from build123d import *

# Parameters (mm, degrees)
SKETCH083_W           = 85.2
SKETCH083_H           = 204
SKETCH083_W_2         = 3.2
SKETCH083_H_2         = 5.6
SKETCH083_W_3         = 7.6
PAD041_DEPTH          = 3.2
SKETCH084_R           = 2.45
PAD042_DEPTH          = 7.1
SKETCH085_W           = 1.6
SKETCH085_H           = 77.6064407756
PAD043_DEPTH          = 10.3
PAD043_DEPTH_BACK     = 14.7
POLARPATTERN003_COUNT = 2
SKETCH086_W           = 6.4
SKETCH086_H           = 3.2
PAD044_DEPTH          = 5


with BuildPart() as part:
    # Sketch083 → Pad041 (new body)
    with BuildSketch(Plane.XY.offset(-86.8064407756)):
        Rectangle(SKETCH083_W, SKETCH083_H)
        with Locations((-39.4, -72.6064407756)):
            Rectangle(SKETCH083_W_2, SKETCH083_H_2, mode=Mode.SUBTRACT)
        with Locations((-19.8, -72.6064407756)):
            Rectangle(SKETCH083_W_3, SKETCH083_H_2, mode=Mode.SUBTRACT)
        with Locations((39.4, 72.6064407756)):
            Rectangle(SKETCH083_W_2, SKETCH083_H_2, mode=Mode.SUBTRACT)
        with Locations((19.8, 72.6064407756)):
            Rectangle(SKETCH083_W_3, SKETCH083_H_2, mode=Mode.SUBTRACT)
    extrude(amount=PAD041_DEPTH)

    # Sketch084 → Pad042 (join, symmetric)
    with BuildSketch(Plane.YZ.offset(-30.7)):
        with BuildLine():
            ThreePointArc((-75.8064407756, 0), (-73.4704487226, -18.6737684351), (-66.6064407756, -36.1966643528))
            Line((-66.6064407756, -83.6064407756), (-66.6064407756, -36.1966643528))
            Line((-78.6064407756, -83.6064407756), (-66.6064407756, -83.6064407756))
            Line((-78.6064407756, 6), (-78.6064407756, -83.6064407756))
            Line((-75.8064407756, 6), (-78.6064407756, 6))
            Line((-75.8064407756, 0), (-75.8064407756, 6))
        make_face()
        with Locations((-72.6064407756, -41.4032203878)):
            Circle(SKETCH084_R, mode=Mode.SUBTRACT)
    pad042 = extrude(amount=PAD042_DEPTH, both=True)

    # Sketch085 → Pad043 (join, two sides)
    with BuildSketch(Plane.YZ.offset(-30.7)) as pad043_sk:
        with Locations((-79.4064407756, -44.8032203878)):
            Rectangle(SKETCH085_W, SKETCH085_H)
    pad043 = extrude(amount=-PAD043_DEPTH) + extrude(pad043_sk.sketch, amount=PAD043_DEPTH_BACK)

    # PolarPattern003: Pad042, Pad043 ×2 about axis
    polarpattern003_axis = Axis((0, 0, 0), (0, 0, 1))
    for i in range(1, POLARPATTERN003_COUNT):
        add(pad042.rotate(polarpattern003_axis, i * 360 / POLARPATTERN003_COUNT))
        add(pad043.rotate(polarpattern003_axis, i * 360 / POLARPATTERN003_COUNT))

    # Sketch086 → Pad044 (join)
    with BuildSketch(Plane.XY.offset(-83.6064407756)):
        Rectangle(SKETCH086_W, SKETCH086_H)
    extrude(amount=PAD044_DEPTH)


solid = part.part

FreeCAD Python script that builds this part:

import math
import FreeCAD as App
import Part
import Sketcher
Q = App.Units.Quantity

doc = App.newDocument("Part")
body = doc.addObject("PartDesign::Body", "Body")

# Sketch on XY plane
sketch1 = body.newObject("Sketcher::SketchObject", "Sketch")
sketch1.AttachmentSupport = (doc.getObject("XY_Plane"), [""])
sketch1.MapMode = "FlatFace"
sketch1.AttachmentOffset = App.Placement(App.Vector(0, 0, -86.806441), App.Rotation())
sketch1.addGeometry(Part.LineSegment(App.Vector(-42.6, 102, 0), App.Vector(-42.6, -102, 0)), False)
sketch1.addGeometry(Part.LineSegment(App.Vector(-42.6, -102, 0), App.Vector(42.6, -102, 0)), False)
sketch1.addGeometry(Part.LineSegment(App.Vector(42.6, -102, 0), App.Vector(42.6, 102, 0)), False)
sketch1.addGeometry(Part.LineSegment(App.Vector(42.6, 102, 0), App.Vector(-42.6, 102, 0)), False)
sketch1.addGeometry(Part.LineSegment(App.Vector(-37.8, -75.4, 0), App.Vector(-41, -75.4, 0)), False)
sketch1.addGeometry(Part.LineSegment(App.Vector(-41, -75.4, 0), App.Vector(-41, -69.8, 0)), False)
sketch1.addGeometry(Part.LineSegment(App.Vector(-41, -69.8, 0), App.Vector(-37.8, -69.8, 0)), False)
sketch1.addGeometry(Part.LineSegment(App.Vector(-37.8, -69.8, 0), App.Vector(-37.8, -75.4, 0)), False)
sketch1.addGeometry(Part.LineSegment(App.Vector(-16, -75.4, 0), App.Vector(-23.6, -75.4, 0)), False)
sketch1.addGeometry(Part.LineSegment(App.Vector(-23.6, -75.4, 0), App.Vector(-23.6, -69.8, 0)), False)
sketch1.addGeometry(Part.LineSegment(App.Vector(-23.6, -69.8, 0), App.Vector(-16, -69.8, 0)), False)
sketch1.addGeometry(Part.LineSegment(App.Vector(-16, -69.8, 0), App.Vector(-16, -75.4, 0)), False)
sketch1.addGeometry(Part.LineSegment(App.Vector(23.6, 69.8, 0), App.Vector(16, 69.8, 0)), False)
sketch1.addGeometry(Part.LineSegment(App.Vector(16, 69.8, 0), App.Vector(16, 75.4, 0)), False)
sketch1.addGeometry(Part.LineSegment(App.Vector(16, 75.4, 0), App.Vector(23.6, 75.4, 0)), False)
sketch1.addGeometry(Part.LineSegment(App.Vector(23.6, 75.4, 0), App.Vector(23.6, 69.8, 0)), False)
sketch1.addGeometry(Part.LineSegment(App.Vector(41, 69.8, 0), App.Vector(37.8, 69.8, 0)), False)
sketch1.addGeometry(Part.LineSegment(App.Vector(37.8, 69.8, 0), App.Vector(37.8, 75.4, 0)), False)
sketch1.addGeometry(Part.LineSegment(App.Vector(37.8, 75.4, 0), App.Vector(41, 75.4, 0)), False)
sketch1.addGeometry(Part.LineSegment(App.Vector(41, 75.4, 0), App.Vector(41, 69.8, 0)), False)
sketch1.addConstraint(Sketcher.Constraint("Coincident", 0, 2, 1, 1))
sketch1.addConstraint(Sketcher.Constraint("Coincident", 1, 2, 2, 1))
sketch1.addConstraint(Sketcher.Constraint("Coincident", 2, 2, 3, 1))
sketch1.addConstraint(Sketcher.Constraint("Coincident", 3, 2, 0, 1))
sketch1.addConstraint(Sketcher.Constraint("Coincident", 4, 2, 5, 1))
sketch1.addConstraint(Sketcher.Constraint("Coincident", 5, 2, 6, 1))
sketch1.addConstraint(Sketcher.Constraint("Coincident", 6, 2, 7, 1))
sketch1.addConstraint(Sketcher.Constraint("Coincident", 7, 2, 4, 1))
sketch1.addConstraint(Sketcher.Constraint("Coincident", 8, 2, 9, 1))
sketch1.addConstraint(Sketcher.Constraint("Coincident", 9, 2, 10, 1))
sketch1.addConstraint(Sketcher.Constraint("Coincident", 10, 2, 11, 1))
sketch1.addConstraint(Sketcher.Constraint("Coincident", 11, 2, 8, 1))
sketch1.addConstraint(Sketcher.Constraint("Coincident", 12, 2, 13, 1))
sketch1.addConstraint(Sketcher.Constraint("Coincident", 13, 2, 14, 1))
sketch1.addConstraint(Sketcher.Constraint("Coincident", 14, 2, 15, 1))
sketch1.addConstraint(Sketcher.Constraint("Coincident", 15, 2, 12, 1))
sketch1.addConstraint(Sketcher.Constraint("Coincident", 16, 2, 17, 1))
sketch1.addConstraint(Sketcher.Constraint("Coincident", 17, 2, 18, 1))
sketch1.addConstraint(Sketcher.Constraint("Coincident", 18, 2, 19, 1))
sketch1.addConstraint(Sketcher.Constraint("Coincident", 19, 2, 16, 1))
sketch1.addConstraint(Sketcher.Constraint("Vertical", 0))
sketch1.addConstraint(Sketcher.Constraint("Horizontal", 1))
sketch1.addConstraint(Sketcher.Constraint("Vertical", 2))
sketch1.addConstraint(Sketcher.Constraint("Horizontal", 3))
sketch1.addConstraint(Sketcher.Constraint("Horizontal", 4))
sketch1.addConstraint(Sketcher.Constraint("Vertical", 5))
sketch1.addConstraint(Sketcher.Constraint("Horizontal", 6))
sketch1.addConstraint(Sketcher.Constraint("Vertical", 7))
sketch1.addConstraint(Sketcher.Constraint("Horizontal", 8))
sketch1.addConstraint(Sketcher.Constraint("Vertical", 9))
sketch1.addConstraint(Sketcher.Constraint("Horizontal", 10))
sketch1.addConstraint(Sketcher.Constraint("Vertical", 11))
sketch1.addConstraint(Sketcher.Constraint("Horizontal", 12))
sketch1.addConstraint(Sketcher.Constraint("Vertical", 13))
sketch1.addConstraint(Sketcher.Constraint("Horizontal", 14))
sketch1.addConstraint(Sketcher.Constraint("Vertical", 15))
sketch1.addConstraint(Sketcher.Constraint("Horizontal", 16))
sketch1.addConstraint(Sketcher.Constraint("Vertical", 17))
sketch1.addConstraint(Sketcher.Constraint("Horizontal", 18))
sketch1.addConstraint(Sketcher.Constraint("Vertical", 19))
sketch1.addConstraint(Sketcher.Constraint("Symmetric", 0, 2, 2, 2, -1, 1))
sketch1.addConstraint(Sketcher.Constraint("Symmetric", 10, 2, 12, 2, -1, 1))
sketch1.addConstraint(Sketcher.Constraint("Symmetric", 8, 2, 14, 2, -1, 1))
sketch1.addConstraint(Sketcher.Constraint("Symmetric", 6, 2, 16, 2, -1, 1))
sketch1.addConstraint(Sketcher.Constraint("Symmetric", 4, 2, 18, 2, -1, 1))
sketch1.addConstraint(Sketcher.Constraint("Horizontal", 7, 2, 8, 2))
sketch1.addConstraint(Sketcher.Constraint("Horizontal", 6, 2, 9, 2))
sketch1.addConstraint(Sketcher.Constraint("DistanceY", 0, 2, 0, 1, Q("204 mm")))
sketch1.addConstraint(Sketcher.Constraint("DistanceX", 1, 1, 1, 2, Q("85.2 mm")))
sketch1.addConstraint(Sketcher.Constraint("DistanceX", 4, 2, 4, 1, Q("3.2 mm")))
sketch1.addConstraint(Sketcher.Constraint("DistanceX", 8, 2, 8, 1, Q("7.6 mm")))
sketch1.addConstraint(Sketcher.Constraint("DistanceY", 5, 1, 5, 2, Q("5.6 mm")))
sketch1.addConstraint(Sketcher.Constraint("DistanceX", 4, 2, -1, 1, Q("41 mm")))
sketch1.addConstraint(Sketcher.Constraint("DistanceX", 10, 2, -1, 1, Q("16 mm")))
sketch1.addConstraint(Sketcher.Constraint("DistanceY", 4, 2, -1, 1, Q("75.406441 mm")))
pad1 = body.newObject("PartDesign::Pad", "Pad")
pad1.Profile = sketch1
pad1.Length = 3.2

# Sketch on YZ plane
sketch2 = body.newObject("Sketcher::SketchObject", "Sketch001")
sketch2.AttachmentSupport = (doc.getObject("YZ_Plane"), [""])
sketch2.MapMode = "FlatFace"
sketch2.AttachmentOffset = App.Placement(App.Vector(0, 0, -30.7), App.Rotation())
sketch2.addGeometry(Part.ArcOfCircle(Part.Circle(App.Vector(0, 0, 0), App.Vector(0, 0, 1), 75.8), math.radians(180), math.radians(209)), False)
sketch2.addGeometry(Part.LineSegment(App.Vector(-75.8, 0, 0), App.Vector(-75.8, 6, 0)), False)
sketch2.addGeometry(Part.LineSegment(App.Vector(-75.8, 6, 0), App.Vector(-78.6, 6, 0)), False)
sketch2.addGeometry(Part.LineSegment(App.Vector(-78.6, 6, 0), App.Vector(-78.6, -83.6, 0)), False)
sketch2.addGeometry(Part.LineSegment(App.Vector(-78.6, -83.6, 0), App.Vector(-66.6, -83.6, 0)), False)
sketch2.addGeometry(Part.LineSegment(App.Vector(-66.6, -83.6, 0), App.Vector(-66.6, -36.2, 0)), False)
sketch2.addGeometry(Part.Circle(App.Vector(-72.6, -41.4, 0), App.Vector(0, 0, 1), 2.5), False)
sketch2.addConstraint(Sketcher.Constraint("Tangent", 0, 1, 1, 1))
sketch2.addConstraint(Sketcher.Constraint("Coincident", 1, 2, 2, 1))
sketch2.addConstraint(Sketcher.Constraint("Coincident", 2, 2, 3, 1))
sketch2.addConstraint(Sketcher.Constraint("Coincident", 3, 2, 4, 1))
sketch2.addConstraint(Sketcher.Constraint("Coincident", 4, 2, 5, 1))
sketch2.addConstraint(Sketcher.Constraint("Coincident", 5, 2, 0, 2))
sketch2.addConstraint(Sketcher.Constraint("Vertical", 1))
sketch2.addConstraint(Sketcher.Constraint("Horizontal", 2))
sketch2.addConstraint(Sketcher.Constraint("Vertical", 3))
sketch2.addConstraint(Sketcher.Constraint("Horizontal", 4))
sketch2.addConstraint(Sketcher.Constraint("Vertical", 5))
sketch2.addConstraint(Sketcher.Constraint("Coincident", 0, 3, -1, 1))
sketch2.addConstraint(Sketcher.Constraint("Diameter", 6, Q("4.9 mm")))
sketch2.addConstraint(Sketcher.Constraint("DistanceX", 4, 1, 4, 2, Q("12 mm")))
sketch2.addConstraint(Sketcher.Constraint("DistanceY", 1, 1, 1, 2, Q("6 mm")))
sketch2.addConstraint(Sketcher.Constraint("DistanceX", 2, 2, 2, 1, Q("2.8 mm")))
sketch2.addConstraint(Sketcher.Constraint("DistanceX", 2, 2, 6, 3, Q("6 mm")))
sketch2.addConstraint(Sketcher.Constraint("Radius", 0, Q("75.806441 mm")))
sketch2.addConstraint(Sketcher.Constraint("DistanceY", 3, 2, 3, 1, Q("89.606441 mm")))
sketch2.addConstraint(Sketcher.Constraint("DistanceY", 6, 3, -1, 1, Q("41.40322 mm")))
pad2 = body.newObject("PartDesign::Pad", "Pad001")
pad2.Profile = sketch2
pad2.Length = 14.2
pad2.Midplane = True

# Sketch on YZ plane
sketch3 = body.newObject("Sketcher::SketchObject", "Sketch002")
sketch3.AttachmentSupport = (doc.getObject("YZ_Plane"), [""])
sketch3.MapMode = "FlatFace"
sketch3.AttachmentOffset = App.Placement(App.Vector(0, 0, -30.7), App.Rotation())
sketch3.addGeometry(Part.LineSegment(App.Vector(-80.2, -6, 0), App.Vector(-80.2, -83.6, 0)), False)
sketch3.addGeometry(Part.LineSegment(App.Vector(-80.2, -83.6, 0), App.Vector(-78.6, -83.6, 0)), False)
sketch3.addGeometry(Part.LineSegment(App.Vector(-78.6, -83.6, 0), App.Vector(-78.6, -6, 0)), False)
sketch3.addGeometry(Part.LineSegment(App.Vector(-78.6, -6, 0), App.Vector(-80.2, -6, 0)), False)
sketch3.addConstraint(Sketcher.Constraint("Coincident", 0, 2, 1, 1))
sketch3.addConstraint(Sketcher.Constraint("Coincident", 1, 2, 2, 1))
sketch3.addConstraint(Sketcher.Constraint("Coincident", 2, 2, 3, 1))
sketch3.addConstraint(Sketcher.Constraint("Coincident", 3, 2, 0, 1))
sketch3.addConstraint(Sketcher.Constraint("Vertical", 0))
sketch3.addConstraint(Sketcher.Constraint("Horizontal", 1))
sketch3.addConstraint(Sketcher.Constraint("Vertical", 2))
sketch3.addConstraint(Sketcher.Constraint("Horizontal", 3))
sketch3.addConstraint(Sketcher.Constraint("DistanceX", 1, 1, 1, 2, Q("1.6 mm")))
sketch3.addConstraint(Sketcher.Constraint("DistanceY", 2, 2, -1, 1, Q("6 mm")))
sketch3.addConstraint(Sketcher.Constraint("DistanceY", 0, 2, 0, 1, Q("77.606441 mm")))
sketch3.addConstraint(Sketcher.Constraint("DistanceX", 0, 2, -1, 1, Q("80.206441 mm")))
pad3 = body.newObject("PartDesign::Pad", "Pad002")
pad3.Profile = sketch3
pad3.Type = "TwoLengths"
pad3.Length = 10.3
pad3.Length2 = 14.7
pad3.Reversed = True
doc.recompute()

polarpattern = body.newObject("PartDesign::PolarPattern", "PolarPattern")
polarpattern.Originals = [pad2, pad3]
polarpattern.Axis = (doc.getObject("Z_Axis"), [""])
polarpattern.Angle = 360
polarpattern.Occurrences = 2
body.Tip = polarpattern

# Sketch on XY plane
sketch4 = body.newObject("Sketcher::SketchObject", "Sketch003")
sketch4.AttachmentSupport = (doc.getObject("XY_Plane"), [""])
sketch4.MapMode = "FlatFace"
sketch4.AttachmentOffset = App.Placement(App.Vector(0, 0, -83.606441), App.Rotation())
sketch4.addGeometry(Part.LineSegment(App.Vector(-3.2, 1.6, 0), App.Vector(-3.2, -1.6, 0)), False)
sketch4.addGeometry(Part.LineSegment(App.Vector(-3.2, -1.6, 0), App.Vector(3.2, -1.6, 0)), False)
sketch4.addGeometry(Part.LineSegment(App.Vector(3.2, -1.6, 0), App.Vector(3.2, 1.6, 0)), False)
sketch4.addGeometry(Part.LineSegment(App.Vector(3.2, 1.6, 0), App.Vector(-3.2, 1.6, 0)), False)
sketch4.addConstraint(Sketcher.Constraint("Coincident", 0, 2, 1, 1))
sketch4.addConstraint(Sketcher.Constraint("Coincident", 1, 2, 2, 1))
sketch4.addConstraint(Sketcher.Constraint("Coincident", 2, 2, 3, 1))
sketch4.addConstraint(Sketcher.Constraint("Coincident", 3, 2, 0, 1))
sketch4.addConstraint(Sketcher.Constraint("Vertical", 0))
sketch4.addConstraint(Sketcher.Constraint("Horizontal", 1))
sketch4.addConstraint(Sketcher.Constraint("Vertical", 2))
sketch4.addConstraint(Sketcher.Constraint("Horizontal", 3))
sketch4.addConstraint(Sketcher.Constraint("Symmetric", 0, 2, 2, 2, -1, 1))
sketch4.addConstraint(Sketcher.Constraint("DistanceX", 1, 1, 1, 2, Q("6.4 mm")))
sketch4.addConstraint(Sketcher.Constraint("DistanceY", 0, 2, 0, 1, Q("3.2 mm")))
pad4 = body.newObject("PartDesign::Pad", "Pad003")
pad4.Profile = sketch4
pad4.Length = 5

doc.recompute()
